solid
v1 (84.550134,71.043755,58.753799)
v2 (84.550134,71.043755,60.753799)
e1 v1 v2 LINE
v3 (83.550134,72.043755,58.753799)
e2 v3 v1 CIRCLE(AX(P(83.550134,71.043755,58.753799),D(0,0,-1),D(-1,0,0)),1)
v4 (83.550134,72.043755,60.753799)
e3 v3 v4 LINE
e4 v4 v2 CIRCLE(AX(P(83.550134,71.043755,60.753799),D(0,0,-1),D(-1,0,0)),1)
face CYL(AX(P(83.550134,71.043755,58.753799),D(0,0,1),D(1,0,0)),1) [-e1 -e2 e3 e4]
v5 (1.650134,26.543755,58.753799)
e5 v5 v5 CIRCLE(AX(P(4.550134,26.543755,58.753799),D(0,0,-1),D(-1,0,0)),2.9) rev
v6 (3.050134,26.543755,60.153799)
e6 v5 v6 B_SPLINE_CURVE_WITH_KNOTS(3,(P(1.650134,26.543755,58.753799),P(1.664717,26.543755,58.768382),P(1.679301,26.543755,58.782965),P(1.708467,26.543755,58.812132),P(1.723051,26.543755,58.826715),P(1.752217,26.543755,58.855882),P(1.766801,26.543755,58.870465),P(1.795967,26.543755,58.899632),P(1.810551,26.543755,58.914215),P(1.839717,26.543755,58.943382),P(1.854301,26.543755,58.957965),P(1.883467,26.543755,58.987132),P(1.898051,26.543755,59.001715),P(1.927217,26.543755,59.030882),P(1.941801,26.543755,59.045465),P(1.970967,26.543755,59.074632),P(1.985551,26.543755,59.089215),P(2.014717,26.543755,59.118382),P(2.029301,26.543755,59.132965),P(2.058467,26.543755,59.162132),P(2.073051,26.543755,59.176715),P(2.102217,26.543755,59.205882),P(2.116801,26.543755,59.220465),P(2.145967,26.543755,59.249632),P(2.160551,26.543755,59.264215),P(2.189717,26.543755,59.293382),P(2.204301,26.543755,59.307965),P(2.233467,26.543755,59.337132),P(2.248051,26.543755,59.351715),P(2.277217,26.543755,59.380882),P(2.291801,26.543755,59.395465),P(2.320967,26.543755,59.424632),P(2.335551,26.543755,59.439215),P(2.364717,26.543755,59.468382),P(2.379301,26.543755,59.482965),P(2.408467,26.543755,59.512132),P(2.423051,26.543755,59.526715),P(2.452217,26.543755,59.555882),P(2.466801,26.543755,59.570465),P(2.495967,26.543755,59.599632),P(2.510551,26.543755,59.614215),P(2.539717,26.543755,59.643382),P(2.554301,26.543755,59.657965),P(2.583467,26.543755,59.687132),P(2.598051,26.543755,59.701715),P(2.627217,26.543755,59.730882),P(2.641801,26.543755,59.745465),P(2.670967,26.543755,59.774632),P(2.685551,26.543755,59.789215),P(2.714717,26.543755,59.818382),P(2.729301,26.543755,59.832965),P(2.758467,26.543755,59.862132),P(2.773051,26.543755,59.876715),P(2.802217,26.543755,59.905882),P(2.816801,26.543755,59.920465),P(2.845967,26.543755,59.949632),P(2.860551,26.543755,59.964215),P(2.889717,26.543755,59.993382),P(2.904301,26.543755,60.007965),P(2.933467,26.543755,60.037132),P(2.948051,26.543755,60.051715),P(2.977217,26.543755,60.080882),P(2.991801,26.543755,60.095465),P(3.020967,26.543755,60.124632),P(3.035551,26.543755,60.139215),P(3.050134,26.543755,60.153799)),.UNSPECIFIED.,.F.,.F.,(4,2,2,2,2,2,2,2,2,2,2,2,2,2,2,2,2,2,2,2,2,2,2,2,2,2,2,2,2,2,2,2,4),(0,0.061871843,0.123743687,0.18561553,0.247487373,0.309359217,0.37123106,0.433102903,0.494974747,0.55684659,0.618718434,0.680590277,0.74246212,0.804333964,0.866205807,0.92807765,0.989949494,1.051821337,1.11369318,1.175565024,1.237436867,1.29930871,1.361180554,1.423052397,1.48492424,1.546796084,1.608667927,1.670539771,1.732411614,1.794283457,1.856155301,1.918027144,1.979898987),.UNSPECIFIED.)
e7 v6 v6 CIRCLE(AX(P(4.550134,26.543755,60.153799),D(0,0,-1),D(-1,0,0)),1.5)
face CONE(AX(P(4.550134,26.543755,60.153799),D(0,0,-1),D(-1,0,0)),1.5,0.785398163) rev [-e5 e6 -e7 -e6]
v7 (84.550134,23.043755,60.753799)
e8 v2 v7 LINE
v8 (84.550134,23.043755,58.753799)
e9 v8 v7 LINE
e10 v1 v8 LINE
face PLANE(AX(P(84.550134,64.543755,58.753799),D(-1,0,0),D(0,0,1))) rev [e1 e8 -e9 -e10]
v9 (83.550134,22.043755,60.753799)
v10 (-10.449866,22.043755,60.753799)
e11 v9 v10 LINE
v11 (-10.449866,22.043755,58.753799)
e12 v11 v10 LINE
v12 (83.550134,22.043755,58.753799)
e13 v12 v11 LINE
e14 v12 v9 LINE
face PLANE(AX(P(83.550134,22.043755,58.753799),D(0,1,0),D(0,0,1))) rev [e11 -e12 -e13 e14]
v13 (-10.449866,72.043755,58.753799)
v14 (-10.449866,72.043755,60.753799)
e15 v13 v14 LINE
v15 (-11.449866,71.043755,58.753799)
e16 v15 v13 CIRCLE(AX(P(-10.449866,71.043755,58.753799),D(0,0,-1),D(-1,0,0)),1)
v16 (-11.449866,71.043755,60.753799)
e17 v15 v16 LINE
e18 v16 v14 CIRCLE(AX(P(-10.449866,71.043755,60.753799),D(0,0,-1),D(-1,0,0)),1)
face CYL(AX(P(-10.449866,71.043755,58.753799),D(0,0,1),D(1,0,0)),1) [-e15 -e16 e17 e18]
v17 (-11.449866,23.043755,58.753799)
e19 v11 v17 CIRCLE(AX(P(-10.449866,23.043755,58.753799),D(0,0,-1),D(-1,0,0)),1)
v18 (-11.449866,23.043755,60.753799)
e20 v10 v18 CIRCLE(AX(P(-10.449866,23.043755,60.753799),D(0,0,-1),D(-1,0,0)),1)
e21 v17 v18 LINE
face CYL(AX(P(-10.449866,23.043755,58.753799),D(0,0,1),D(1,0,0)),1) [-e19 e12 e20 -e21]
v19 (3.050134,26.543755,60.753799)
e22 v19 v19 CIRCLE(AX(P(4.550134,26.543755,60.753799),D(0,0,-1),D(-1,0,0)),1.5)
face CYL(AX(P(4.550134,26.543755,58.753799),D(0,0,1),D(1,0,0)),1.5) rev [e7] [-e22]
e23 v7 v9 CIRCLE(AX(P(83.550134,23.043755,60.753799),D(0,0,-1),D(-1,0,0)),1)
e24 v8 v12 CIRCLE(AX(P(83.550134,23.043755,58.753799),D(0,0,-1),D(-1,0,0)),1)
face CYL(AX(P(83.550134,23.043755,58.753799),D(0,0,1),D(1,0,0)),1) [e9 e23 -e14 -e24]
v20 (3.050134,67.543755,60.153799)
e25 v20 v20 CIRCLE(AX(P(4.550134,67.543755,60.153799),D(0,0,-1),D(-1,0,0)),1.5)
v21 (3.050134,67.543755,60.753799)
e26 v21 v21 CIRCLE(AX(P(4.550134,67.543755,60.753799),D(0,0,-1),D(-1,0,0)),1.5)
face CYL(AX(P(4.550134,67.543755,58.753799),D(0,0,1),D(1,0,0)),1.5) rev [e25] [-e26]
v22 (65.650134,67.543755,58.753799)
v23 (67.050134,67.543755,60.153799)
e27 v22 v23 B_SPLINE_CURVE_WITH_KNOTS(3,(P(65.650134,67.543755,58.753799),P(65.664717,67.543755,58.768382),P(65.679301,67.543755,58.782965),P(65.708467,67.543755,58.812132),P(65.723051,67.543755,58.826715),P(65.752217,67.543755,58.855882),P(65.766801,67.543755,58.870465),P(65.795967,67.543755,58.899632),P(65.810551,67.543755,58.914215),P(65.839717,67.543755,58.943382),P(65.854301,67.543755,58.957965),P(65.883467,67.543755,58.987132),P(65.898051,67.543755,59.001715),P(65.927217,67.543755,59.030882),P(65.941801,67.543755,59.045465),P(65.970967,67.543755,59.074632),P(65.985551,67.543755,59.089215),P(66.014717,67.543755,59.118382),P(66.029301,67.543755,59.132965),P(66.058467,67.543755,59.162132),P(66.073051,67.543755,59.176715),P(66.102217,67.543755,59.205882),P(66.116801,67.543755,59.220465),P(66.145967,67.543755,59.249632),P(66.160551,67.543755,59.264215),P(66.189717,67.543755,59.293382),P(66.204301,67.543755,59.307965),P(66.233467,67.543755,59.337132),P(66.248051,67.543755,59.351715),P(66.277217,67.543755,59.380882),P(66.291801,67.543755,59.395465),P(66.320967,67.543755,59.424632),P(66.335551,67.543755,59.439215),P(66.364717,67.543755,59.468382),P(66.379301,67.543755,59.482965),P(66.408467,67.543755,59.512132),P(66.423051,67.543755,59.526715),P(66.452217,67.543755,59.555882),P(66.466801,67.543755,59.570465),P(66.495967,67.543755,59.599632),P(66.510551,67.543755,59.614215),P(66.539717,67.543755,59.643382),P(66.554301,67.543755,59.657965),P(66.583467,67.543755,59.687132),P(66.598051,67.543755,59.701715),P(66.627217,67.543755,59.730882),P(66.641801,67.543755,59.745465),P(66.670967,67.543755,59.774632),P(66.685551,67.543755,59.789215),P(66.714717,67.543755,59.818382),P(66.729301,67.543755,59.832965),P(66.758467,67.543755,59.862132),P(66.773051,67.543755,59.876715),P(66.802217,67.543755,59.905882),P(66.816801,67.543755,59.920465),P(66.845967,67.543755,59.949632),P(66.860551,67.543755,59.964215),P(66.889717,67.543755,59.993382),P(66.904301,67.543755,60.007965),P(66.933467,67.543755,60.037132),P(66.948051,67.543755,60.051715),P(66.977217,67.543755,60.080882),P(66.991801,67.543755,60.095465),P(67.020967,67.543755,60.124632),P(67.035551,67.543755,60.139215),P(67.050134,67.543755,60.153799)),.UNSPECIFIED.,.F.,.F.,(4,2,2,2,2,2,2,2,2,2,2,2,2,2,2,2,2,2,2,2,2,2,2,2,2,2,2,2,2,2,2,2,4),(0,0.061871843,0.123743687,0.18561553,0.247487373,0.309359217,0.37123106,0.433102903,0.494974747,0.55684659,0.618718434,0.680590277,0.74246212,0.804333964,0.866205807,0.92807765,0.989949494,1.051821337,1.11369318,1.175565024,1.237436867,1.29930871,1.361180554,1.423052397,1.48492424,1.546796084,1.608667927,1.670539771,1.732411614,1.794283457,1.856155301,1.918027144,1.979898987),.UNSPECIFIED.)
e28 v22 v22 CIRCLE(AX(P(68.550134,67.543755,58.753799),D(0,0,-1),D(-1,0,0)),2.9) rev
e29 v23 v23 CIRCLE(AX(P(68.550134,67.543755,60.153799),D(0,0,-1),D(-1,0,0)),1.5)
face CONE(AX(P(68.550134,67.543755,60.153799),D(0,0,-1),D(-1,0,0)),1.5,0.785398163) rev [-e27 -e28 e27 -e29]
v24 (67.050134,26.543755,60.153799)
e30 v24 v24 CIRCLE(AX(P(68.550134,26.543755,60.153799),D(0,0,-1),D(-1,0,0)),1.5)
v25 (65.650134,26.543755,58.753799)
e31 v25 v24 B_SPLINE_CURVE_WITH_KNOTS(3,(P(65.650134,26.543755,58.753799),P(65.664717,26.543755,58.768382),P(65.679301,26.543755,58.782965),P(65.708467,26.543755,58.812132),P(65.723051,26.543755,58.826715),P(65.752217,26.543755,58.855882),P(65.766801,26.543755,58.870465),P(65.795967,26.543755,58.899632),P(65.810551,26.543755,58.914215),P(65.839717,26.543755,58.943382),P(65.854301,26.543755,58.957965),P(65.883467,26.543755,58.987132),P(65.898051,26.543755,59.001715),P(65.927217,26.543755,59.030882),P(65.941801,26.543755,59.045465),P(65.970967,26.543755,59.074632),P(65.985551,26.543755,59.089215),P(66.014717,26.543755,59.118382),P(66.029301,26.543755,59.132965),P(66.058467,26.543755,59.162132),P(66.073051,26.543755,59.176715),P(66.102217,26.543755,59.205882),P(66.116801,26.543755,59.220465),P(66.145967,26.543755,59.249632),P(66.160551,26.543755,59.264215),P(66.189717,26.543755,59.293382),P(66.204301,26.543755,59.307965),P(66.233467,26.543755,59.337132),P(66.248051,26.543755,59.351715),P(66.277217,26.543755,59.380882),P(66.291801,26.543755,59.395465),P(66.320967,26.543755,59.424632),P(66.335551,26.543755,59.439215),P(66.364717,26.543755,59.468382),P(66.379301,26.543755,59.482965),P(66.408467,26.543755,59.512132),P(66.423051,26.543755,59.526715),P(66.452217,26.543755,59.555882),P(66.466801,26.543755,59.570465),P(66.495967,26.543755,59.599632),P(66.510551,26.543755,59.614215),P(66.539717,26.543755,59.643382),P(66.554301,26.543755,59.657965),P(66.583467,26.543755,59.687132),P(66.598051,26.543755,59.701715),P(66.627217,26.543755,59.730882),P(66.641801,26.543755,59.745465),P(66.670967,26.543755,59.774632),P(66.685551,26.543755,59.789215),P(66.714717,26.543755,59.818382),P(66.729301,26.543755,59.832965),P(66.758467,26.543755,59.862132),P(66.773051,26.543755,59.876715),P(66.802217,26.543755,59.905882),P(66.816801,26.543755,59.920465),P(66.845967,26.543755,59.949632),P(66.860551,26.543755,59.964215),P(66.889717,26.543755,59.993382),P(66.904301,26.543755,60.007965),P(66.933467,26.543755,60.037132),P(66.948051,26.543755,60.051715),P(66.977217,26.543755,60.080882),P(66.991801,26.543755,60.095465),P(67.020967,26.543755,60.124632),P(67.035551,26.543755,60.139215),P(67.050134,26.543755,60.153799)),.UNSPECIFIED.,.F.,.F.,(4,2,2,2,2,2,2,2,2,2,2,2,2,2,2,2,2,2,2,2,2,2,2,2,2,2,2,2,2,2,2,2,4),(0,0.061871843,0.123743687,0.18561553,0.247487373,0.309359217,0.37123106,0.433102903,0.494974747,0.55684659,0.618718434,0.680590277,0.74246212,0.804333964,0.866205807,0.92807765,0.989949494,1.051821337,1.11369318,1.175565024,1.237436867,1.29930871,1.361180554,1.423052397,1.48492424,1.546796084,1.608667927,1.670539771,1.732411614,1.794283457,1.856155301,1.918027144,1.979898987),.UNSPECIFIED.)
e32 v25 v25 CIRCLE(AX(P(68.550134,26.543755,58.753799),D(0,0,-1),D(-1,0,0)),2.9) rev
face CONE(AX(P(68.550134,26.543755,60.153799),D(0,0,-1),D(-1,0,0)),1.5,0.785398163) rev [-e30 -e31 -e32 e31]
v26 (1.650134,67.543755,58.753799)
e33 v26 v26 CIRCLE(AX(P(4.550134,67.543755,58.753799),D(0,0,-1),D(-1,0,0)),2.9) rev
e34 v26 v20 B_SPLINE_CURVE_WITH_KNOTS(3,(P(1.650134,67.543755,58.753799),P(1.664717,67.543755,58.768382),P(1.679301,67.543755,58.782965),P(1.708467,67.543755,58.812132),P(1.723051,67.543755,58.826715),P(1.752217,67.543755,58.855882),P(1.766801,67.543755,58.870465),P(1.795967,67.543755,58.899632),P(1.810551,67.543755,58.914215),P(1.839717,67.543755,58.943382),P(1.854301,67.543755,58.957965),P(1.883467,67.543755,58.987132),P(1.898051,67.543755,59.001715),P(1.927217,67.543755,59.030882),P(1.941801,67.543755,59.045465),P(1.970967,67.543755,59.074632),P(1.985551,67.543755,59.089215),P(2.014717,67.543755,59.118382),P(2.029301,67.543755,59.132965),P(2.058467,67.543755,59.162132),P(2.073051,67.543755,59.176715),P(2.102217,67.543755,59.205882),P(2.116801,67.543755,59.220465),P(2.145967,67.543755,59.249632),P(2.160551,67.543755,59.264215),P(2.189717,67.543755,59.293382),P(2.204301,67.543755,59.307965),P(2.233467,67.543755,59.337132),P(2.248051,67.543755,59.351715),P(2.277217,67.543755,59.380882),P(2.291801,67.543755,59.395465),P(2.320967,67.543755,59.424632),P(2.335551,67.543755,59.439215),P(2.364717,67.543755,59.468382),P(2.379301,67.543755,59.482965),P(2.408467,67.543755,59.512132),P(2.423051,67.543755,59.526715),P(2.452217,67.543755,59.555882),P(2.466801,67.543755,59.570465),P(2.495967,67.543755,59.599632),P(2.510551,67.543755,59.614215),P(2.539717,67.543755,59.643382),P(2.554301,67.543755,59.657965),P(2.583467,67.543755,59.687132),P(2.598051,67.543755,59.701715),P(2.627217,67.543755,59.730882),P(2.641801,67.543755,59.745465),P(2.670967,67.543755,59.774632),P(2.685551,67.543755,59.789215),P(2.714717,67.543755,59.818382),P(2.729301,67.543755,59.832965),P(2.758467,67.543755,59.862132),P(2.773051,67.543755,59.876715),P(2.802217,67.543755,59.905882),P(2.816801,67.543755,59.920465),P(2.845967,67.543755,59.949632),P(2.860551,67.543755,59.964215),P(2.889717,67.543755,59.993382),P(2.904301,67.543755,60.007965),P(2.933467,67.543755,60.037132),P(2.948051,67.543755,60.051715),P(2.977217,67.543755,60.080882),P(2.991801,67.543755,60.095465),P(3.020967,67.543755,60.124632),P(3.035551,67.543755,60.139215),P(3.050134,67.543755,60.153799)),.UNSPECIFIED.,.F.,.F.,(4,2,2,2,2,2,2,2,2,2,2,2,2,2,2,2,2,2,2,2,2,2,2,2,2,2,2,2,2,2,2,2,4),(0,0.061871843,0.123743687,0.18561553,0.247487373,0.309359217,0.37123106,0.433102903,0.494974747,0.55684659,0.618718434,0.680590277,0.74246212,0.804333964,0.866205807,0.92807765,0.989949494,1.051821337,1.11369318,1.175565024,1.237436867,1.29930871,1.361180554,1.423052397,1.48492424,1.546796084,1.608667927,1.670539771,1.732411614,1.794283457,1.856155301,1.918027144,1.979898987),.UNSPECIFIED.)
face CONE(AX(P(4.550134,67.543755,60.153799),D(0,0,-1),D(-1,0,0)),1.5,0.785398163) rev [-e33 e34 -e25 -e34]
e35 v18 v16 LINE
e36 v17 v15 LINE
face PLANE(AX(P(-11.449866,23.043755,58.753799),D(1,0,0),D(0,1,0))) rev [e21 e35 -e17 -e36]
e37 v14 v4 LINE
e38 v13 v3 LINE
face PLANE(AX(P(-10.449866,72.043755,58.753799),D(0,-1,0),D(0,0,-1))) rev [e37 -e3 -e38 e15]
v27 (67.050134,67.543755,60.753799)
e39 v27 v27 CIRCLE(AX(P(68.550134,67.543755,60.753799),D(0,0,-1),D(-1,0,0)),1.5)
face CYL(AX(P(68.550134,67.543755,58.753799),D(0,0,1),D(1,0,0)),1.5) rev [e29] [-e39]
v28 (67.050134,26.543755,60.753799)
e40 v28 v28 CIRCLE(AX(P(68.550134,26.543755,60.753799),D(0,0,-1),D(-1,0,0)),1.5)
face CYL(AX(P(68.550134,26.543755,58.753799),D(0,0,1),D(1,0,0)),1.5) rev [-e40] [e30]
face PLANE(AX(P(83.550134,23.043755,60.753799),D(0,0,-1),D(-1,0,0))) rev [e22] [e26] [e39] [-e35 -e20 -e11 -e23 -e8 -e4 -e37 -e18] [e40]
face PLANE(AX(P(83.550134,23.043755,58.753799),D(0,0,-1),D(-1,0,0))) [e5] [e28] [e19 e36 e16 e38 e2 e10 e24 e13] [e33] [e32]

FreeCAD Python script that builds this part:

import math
import FreeCAD as App
import Part
import Sketcher


def edges_at(feature, points):
    """Names of the edges that pass closest to the given points."""
    edges = feature.Shape.Edges
    near = lambda p: min(range(len(edges)), key=lambda i: edges[i].distToShape(Part.Vertex(*p))[0])
    return sorted({f"Edge{near(p) + 1}" for p in points})

doc = App.newDocument("Part")
body = doc.addObject("PartDesign::Body", "Body")

# Sketch on XY plane
sketch1 = body.newObject("Sketcher::SketchObject", "Sketch")
sketch1.AttachmentSupport = (doc.getObject("XY_Plane"), [""])
sketch1.MapMode = "FlatFace"
sketch1.AttachmentOffset = App.Placement(App.Vector(0, 0, 60.753799), App.Rotation())
sketch1.addGeometry(Part.ArcOfCircle(Part.Circle(App.Vector(83.6, 23, 0), App.Vector(0, 0, 1), 1), math.radians(-90), math.radians(0)), False)
sketch1.addGeometry(Part.LineSegment(App.Vector(83.6, 22, 0), App.Vector(-10.4, 22, 0)), False)
sketch1.addGeometry(Part.ArcOfCircle(Part.Circle(App.Vector(-10.4, 23, 0), App.Vector(0, 0, 1), 1), math.radians(180), math.radians(270)), False)
sketch1.addGeometry(Part.LineSegment(App.Vector(-11.4, 23, 0), App.Vector(-11.4, 71, 0)), False)
sketch1.addGeometry(Part.ArcOfCircle(Part.Circle(App.Vector(-10.4, 71, 0), App.Vector(0, 0, 1), 1), math.radians(90), math.radians(180)), False)
sketch1.addGeometry(Part.LineSegment(App.Vector(-10.4, 72, 0), App.Vector(83.6, 72, 0)), False)
sketch1.addGeometry(Part.ArcOfCircle(Part.Circle(App.Vector(83.6, 71, 0), App.Vector(0, 0, 1), 1), math.radians(0), math.radians(90)), False)
sketch1.addGeometry(Part.LineSegment(App.Vector(84.6, 71, 0), App.Vector(84.6, 23, 0)), False)
sketch1.addGeometry(Part.Circle(App.Vector(68.6, 26.5, 0), App.Vector(0, 0, 1), 1.5), False)
sketch1.addGeometry(Part.Circle(App.Vector(4.6, 26.5, 0), App.Vector(0, 0, 1), 1.5), False)
sketch1.addGeometry(Part.Circle(App.Vector(68.6, 67.5, 0), App.Vector(0, 0, 1), 1.5), False)
sketch1.addGeometry(Part.Circle(App.Vector(4.6, 67.5, 0), App.Vector(0, 0, 1), 1.5), False)
sketch1.addConstraint(Sketcher.Constraint("Tangent", 0, 1, 1, 1))
sketch1.addConstraint(Sketcher.Constraint("Tangent", 1, 2, 2, 2))
sketch1.addConstraint(Sketcher.Constraint("Tangent", 2, 1, 3, 1))
sketch1.addConstraint(Sketcher.Constraint("Tangent", 3, 2, 4, 2))
sketch1.addConstraint(Sketcher.Constraint("Tangent", 4, 1, 5, 1))
sketch1.addConstraint(Sketcher.Constraint("Tangent", 5, 2, 6, 2))
sketch1.addConstraint(Sketcher.Constraint("Tangent", 6, 1, 7, 1))
sketch1.addConstraint(Sketcher.Constraint("Tangent", 7, 2, 0, 2))
sketch1.addConstraint(Sketcher.Constraint("Horizontal", 1))
sketch1.addConstraint(Sketcher.Constraint("Vertical", 3))
sketch1.addConstraint(Sketcher.Constraint("Horizontal", 5))
sketch1.addConstraint(Sketcher.Constraint("Vertical", 7))
sketch1.addConstraint(Sketcher.Constraint("Equal", 0, 2))
sketch1.addConstraint(Sketcher.Constraint("Equal", 2, 4))
sketch1.addConstraint(Sketcher.Constraint("Equal", 4, 6))
sketch1.addConstraint(Sketcher.Constraint("Equal", 8, 9))
sketch1.addConstraint(Sketcher.Constraint("Equal", 9, 10))
sketch1.addConstraint(Sketcher.Constraint("Equal", 10, 11))
sketch1.addConstraint(Sketcher.Constraint("Horizontal", 8, 3, 9, 3))
sketch1.addConstraint(Sketcher.Constraint("Horizontal", 10, 3, 11, 3))
sketch1.addConstraint(Sketcher.Constraint("Vertical", 8, 3, 10, 3))
sketch1.addConstraint(Sketcher.Constraint("Vertical", 9, 3, 11, 3))
sketch1.addConstraint(Sketcher.Constraint("Diameter", 8, 3.0))
sketch1.addConstraint(Sketcher.Constraint("Radius", 0, 1.0))
sketch1.addConstraint(Sketcher.Constraint("DistanceX", 1, 2, 1, 1, 94.0))
sketch1.addConstraint(Sketcher.Constraint("DistanceY", 3, 1, 3, 2, 48.0))
sketch1.addConstraint(Sketcher.Constraint("DistanceX", 8, 3, 0, 3, 15.0))
sketch1.addConstraint(Sketcher.Constraint("DistanceX", 2, 3, 9, 3, 15.0))
sketch1.addConstraint(Sketcher.Constraint("DistanceY", 8, 3, 10, 3, 41.0))
sketch1.addConstraint(Sketcher.Constraint("DistanceY", 0, 3, 8, 3, 3.5))
sketch1.addConstraint(Sketcher.Constraint("DistanceX", -1, 1, 0, 3, 83.550134))
sketch1.addConstraint(Sketcher.Constraint("DistanceY", -1, 1, 0, 3, 23.043755))
pad1 = body.newObject("PartDesign::Pad", "Pad")
pad1.Profile = sketch1
pad1.Length = 2
pad1.Reversed = True
doc.recompute()

chamfer = body.newObject("PartDesign::Chamfer", "Chamfer")
chamfer.Base = (pad1, edges_at(pad1, [
    (6.05, 67.544, 58.754),
    (70.05, 67.544, 58.754),
    (70.05, 26.544, 58.754),
    (6.05, 26.544, 58.754),
]))
chamfer.Size = 1.4

doc.recompute()
